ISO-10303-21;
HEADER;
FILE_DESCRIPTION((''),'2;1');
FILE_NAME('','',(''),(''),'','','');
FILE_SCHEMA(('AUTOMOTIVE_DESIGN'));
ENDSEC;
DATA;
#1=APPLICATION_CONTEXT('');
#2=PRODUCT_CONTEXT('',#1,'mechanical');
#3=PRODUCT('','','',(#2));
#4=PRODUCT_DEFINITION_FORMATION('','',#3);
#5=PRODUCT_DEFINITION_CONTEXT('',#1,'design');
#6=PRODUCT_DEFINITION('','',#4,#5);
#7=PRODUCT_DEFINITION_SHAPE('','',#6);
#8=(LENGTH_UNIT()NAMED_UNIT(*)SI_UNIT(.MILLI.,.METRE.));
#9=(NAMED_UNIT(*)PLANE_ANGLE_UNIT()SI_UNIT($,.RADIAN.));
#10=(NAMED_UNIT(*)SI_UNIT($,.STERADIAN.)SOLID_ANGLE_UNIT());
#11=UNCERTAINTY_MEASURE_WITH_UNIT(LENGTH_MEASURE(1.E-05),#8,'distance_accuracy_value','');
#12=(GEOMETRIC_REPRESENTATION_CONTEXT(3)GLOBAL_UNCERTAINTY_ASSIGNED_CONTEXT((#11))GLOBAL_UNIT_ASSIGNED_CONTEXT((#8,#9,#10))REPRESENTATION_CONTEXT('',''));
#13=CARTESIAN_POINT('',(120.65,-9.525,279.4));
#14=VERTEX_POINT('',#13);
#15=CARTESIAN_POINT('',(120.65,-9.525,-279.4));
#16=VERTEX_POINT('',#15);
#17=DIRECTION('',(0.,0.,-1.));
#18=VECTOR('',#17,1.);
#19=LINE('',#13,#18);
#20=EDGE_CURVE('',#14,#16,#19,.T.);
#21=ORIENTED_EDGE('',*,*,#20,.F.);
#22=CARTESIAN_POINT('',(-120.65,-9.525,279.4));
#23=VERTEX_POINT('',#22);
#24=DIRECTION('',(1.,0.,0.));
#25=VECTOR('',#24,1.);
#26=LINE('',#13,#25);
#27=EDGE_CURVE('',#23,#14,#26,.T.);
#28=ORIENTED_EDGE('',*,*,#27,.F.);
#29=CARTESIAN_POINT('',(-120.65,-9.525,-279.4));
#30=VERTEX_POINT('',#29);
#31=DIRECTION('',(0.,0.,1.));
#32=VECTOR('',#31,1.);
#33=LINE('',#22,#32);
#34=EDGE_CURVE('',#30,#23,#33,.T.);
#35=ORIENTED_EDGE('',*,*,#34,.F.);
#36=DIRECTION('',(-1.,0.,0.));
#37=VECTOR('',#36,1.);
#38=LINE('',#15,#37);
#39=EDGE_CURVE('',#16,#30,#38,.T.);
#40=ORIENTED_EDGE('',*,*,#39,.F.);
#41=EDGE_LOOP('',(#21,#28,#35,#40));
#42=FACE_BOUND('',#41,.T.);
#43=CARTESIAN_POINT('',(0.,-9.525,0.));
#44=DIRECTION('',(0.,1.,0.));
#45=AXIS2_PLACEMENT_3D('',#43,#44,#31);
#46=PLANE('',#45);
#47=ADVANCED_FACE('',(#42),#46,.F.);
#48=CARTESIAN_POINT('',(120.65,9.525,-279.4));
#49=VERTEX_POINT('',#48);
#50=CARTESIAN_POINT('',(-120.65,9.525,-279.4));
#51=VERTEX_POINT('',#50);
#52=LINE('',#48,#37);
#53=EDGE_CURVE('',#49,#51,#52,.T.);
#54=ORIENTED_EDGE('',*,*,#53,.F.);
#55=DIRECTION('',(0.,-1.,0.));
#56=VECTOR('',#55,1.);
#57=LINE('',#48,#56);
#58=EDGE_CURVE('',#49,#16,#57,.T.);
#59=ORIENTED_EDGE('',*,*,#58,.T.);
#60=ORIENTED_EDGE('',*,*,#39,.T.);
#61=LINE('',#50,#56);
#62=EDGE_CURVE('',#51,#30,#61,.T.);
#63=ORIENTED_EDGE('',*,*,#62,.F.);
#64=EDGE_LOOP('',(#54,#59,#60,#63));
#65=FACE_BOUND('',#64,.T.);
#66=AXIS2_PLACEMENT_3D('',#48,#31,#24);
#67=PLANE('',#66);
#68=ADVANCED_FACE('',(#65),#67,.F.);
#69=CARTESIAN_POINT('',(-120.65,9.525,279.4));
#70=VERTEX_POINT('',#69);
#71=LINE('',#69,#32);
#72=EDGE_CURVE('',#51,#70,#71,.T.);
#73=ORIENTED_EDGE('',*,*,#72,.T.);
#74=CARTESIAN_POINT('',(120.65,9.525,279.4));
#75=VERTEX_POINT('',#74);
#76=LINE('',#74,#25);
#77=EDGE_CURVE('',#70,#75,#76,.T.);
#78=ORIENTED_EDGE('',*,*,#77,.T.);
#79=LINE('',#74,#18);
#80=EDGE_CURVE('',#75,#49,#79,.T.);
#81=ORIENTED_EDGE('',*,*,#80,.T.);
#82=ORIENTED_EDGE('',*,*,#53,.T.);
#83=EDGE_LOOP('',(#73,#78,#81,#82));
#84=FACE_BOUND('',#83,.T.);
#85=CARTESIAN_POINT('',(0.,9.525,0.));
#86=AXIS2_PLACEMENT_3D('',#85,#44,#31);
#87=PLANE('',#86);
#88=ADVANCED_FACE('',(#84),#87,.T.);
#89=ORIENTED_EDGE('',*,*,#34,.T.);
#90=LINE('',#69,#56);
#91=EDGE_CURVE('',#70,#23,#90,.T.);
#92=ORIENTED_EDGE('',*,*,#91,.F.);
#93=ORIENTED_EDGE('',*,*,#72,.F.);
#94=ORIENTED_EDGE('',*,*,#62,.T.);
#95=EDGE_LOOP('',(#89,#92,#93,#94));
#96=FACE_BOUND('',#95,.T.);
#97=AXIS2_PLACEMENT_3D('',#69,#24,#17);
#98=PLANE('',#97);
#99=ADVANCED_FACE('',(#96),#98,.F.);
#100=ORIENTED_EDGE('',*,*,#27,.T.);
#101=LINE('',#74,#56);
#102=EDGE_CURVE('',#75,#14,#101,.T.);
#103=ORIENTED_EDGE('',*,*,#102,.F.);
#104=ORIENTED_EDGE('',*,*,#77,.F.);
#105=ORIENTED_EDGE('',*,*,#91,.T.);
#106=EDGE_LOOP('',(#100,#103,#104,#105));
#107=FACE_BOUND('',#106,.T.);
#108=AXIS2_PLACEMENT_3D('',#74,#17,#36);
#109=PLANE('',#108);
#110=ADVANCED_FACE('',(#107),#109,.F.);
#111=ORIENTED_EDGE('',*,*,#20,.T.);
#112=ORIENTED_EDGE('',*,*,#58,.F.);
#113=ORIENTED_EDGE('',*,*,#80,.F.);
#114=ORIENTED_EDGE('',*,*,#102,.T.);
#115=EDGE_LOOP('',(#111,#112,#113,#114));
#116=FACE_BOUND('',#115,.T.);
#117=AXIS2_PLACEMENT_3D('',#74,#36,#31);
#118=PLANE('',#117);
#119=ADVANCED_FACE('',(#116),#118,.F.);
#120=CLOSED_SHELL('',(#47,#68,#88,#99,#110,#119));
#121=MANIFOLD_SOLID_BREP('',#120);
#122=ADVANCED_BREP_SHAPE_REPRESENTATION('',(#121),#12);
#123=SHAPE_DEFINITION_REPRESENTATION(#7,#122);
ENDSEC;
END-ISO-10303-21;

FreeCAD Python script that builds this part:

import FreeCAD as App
import Part
import Sketcher
Q = App.Units.Quantity

doc = App.newDocument("Part")
body = doc.addObject("PartDesign::Body", "Body")

sketch1 = body.newObject("Sketcher::SketchObject", "Sketch")
sketch1.AttachmentSupport = (doc.getObject("XZ_Plane"), [""])
sketch1.MapMode = "FlatFace"
sketch1.addGeometry([
    Part.LineSegment(App.Vector(-121, -279, 0), App.Vector(-121, 279, 0)),
    Part.LineSegment(App.Vector(-121, 279, 0), App.Vector(121, 279, 0)),
    Part.LineSegment(App.Vector(121, 279, 0), App.Vector(121, -279, 0)),
    Part.LineSegment(App.Vector(121, -279, 0), App.Vector(-121, -279, 0)),
], False)
sketch1.addConstraint([
    Sketcher.Constraint("Coincident", 0, 2, 1, 1),
    Sketcher.Constraint("Coincident", 1, 2, 2, 1),
    Sketcher.Constraint("Coincident", 2, 2, 3, 1),
    Sketcher.Constraint("Coincident", 3, 2, 0, 1),
    Sketcher.Constraint("Vertical", 0),
    Sketcher.Constraint("Horizontal", 1),
    Sketcher.Constraint("Vertical", 2),
    Sketcher.Constraint("Horizontal", 3),
    Sketcher.Constraint("Symmetric", 0, 2, 2, 2, -1, 1),
    Sketcher.Constraint("DistanceY", 0, 1, 0, 2, Q("22 in")),
    Sketcher.Constraint("DistanceX", 1, 1, 1, 2, Q("9.5 in")),
])
pad1 = body.newObject("PartDesign::Pad", "Pad")
pad1.Profile = sketch1
pad1.Length = Q("0.75 in")
pad1.Midplane = True

doc.recompute()
